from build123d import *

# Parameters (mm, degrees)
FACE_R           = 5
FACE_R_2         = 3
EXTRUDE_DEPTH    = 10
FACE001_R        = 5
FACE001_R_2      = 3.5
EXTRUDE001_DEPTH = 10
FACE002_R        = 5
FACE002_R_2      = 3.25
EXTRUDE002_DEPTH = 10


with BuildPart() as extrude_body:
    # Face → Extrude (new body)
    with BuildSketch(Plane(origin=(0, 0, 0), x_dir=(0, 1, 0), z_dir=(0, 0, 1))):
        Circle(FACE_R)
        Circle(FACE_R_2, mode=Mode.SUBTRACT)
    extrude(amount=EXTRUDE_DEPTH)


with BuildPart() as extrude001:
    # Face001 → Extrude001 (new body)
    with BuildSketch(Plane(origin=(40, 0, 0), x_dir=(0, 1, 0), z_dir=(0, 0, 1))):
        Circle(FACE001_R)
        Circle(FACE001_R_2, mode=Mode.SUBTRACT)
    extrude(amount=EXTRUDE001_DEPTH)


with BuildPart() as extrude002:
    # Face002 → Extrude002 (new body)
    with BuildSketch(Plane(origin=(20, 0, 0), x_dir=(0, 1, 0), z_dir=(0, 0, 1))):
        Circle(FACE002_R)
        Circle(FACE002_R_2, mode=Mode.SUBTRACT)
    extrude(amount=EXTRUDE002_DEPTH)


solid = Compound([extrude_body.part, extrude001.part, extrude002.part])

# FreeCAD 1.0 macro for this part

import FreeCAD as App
import Part
import Sketcher

doc = App.newDocument("Part")
body = doc.addObject("PartDesign::Body", "Body")

# Sketch on XY plane
sketch1 = body.newObject("Sketcher::SketchObject", "Sketch")
sketch1.AttachmentSupport = (doc.getObject("XY_Plane"), [""])
sketch1.MapMode = "FlatFace"
sketch1.addGeometry(Part.Circle(App.Vector(0, 0, 0), App.Vector(0, 0, 1), 5), False)
sketch1.addGeometry(Part.Circle(App.Vector(0, 0, 0), App.Vector(0, 0, 1), 3), False)
sketch1.addConstraint(Sketcher.Constraint("Coincident", 0, 3, -1, 1))
sketch1.addConstraint(Sketcher.Constraint("Coincident", 1, 3, -1, 1))
sketch1.addConstraint(Sketcher.Constraint("Diameter", 0, 10.0))
sketch1.addConstraint(Sketcher.Constraint("Diameter", 1, 6.0))
pad1 = body.newObject("PartDesign::Pad", "Pad")
pad1.Profile = sketch1
pad1.Length = 10
body2 = doc.addObject("PartDesign::Body", "Body001")

# Sketch on XY plane
sketch2 = body2.newObject("Sketcher::SketchObject", "Sketch001")
sketch2.AttachmentSupport = (doc.getObject("XY_Plane001"), [""])
sketch2.MapMode = "FlatFace"
sketch2.addGeometry(Part.Circle(App.Vector(40, 0, 0), App.Vector(0, 0, 1), 5), False)
sketch2.addGeometry(Part.Circle(App.Vector(40, 0, 0), App.Vector(0, 0, 1), 3.5), False)
sketch2.addConstraint(Sketcher.Constraint("Coincident", 1, 3, 0, 3))
sketch2.addConstraint(Sketcher.Constraint("PointOnObject", 0, 3, -1))
sketch2.addConstraint(Sketcher.Constraint("Diameter", 0, 10.0))
sketch2.addConstraint(Sketcher.Constraint("Diameter", 1, 7.0))
sketch2.addConstraint(Sketcher.Constraint("DistanceX", -1, 1, 0, 3, 40.0))
pad2 = body2.newObject("PartDesign::Pad", "Pad001")
pad2.Profile = sketch2
pad2.Length = 10
body3 = doc.addObject("PartDesign::Body", "Body002")

# Sketch on XY plane
sketch3 = body3.newObject("Sketcher::SketchObject", "Sketch002")
sketch3.AttachmentSupport = (doc.getObject("XY_Plane002"), [""])
sketch3.MapMode = "FlatFace"
sketch3.addGeometry(Part.Circle(App.Vector(20, 0, 0), App.Vector(0, 0, 1), 5), False)
sketch3.addGeometry(Part.Circle(App.Vector(20, 0, 0), App.Vector(0, 0, 1), 3.2), False)
sketch3.addConstraint(Sketcher.Constraint("Coincident", 1, 3, 0, 3))
sketch3.addConstraint(Sketcher.Constraint("PointOnObject", 0, 3, -1))
sketch3.addConstraint(Sketcher.Constraint("Diameter", 0, 10.0))
sketch3.addConstraint(Sketcher.Constraint("Diameter", 1, 6.5))
sketch3.addConstraint(Sketcher.Constraint("DistanceX", -1, 1, 0, 3, 20.0))
pad3 = body3.newObject("PartDesign::Pad", "Pad002")
pad3.Profile = sketch3
pad3.Length = 10

doc.recompute()
